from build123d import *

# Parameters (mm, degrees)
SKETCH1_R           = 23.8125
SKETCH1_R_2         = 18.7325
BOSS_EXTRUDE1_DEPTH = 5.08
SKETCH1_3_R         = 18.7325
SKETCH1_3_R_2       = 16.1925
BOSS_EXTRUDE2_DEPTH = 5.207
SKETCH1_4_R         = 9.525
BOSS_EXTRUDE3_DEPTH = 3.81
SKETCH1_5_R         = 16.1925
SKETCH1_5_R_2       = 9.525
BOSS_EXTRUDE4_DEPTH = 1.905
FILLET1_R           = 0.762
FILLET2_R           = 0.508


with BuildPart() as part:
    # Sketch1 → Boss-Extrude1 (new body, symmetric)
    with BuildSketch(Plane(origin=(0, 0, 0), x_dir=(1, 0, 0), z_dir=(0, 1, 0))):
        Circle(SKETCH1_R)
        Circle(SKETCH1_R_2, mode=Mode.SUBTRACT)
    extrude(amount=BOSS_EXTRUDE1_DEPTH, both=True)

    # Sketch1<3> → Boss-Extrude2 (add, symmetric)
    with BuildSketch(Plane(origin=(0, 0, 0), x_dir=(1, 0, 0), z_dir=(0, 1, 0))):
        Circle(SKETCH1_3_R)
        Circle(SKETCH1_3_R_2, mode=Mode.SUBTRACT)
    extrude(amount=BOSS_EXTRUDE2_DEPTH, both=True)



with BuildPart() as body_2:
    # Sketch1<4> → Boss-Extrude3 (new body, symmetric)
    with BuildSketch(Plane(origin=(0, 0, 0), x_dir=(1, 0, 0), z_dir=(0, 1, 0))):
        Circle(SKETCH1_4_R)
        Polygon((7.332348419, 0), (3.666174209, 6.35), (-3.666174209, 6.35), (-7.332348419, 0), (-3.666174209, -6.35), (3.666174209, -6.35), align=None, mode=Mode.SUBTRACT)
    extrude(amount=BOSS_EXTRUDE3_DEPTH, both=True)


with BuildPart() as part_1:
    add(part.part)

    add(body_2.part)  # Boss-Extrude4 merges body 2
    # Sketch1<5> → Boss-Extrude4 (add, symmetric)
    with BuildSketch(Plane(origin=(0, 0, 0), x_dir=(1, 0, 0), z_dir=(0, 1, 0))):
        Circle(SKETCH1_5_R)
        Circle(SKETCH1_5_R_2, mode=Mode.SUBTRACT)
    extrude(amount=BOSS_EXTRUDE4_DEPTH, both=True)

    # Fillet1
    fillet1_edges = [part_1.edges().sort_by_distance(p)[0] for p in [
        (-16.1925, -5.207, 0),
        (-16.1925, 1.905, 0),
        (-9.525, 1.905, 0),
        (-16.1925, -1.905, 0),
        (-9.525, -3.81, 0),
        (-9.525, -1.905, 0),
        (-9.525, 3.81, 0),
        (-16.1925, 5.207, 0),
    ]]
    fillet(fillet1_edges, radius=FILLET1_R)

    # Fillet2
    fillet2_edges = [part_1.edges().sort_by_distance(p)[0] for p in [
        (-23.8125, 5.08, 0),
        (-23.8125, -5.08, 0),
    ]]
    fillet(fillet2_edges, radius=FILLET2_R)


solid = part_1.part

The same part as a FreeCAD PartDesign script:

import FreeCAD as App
import Part
import Sketcher
from FreeCAD import Vector
Q = App.Units.Quantity


def edges_at(feature, points):
    """Names of the edges that pass closest to the given points."""
    edges = feature.Shape.Edges
    near = lambda p: min(range(len(edges)), key=lambda i: edges[i].distToShape(Part.Vertex(*p))[0])
    return sorted({f"Edge{near(p) + 1}" for p in points})

doc = App.newDocument("Part")
body = doc.addObject("PartDesign::Body", "Body")

# Sketch on XZ plane
sketch1 = body.newObject("Sketcher::SketchObject", "Sketch")
sketch1.AttachmentSupport = (doc.getObject("XZ_Plane"), [""])
sketch1.MapMode = "FlatFace"
sketch1.addGeometry([
    Part.Circle(Vector(0, 0, 0), Vector(0, 0, 1), 24),
    Part.Circle(Vector(0, 0, 0), Vector(0, 0, 1), 19),
], False)
sketch1.addConstraint([
    Sketcher.Constraint("Coincident", 0, 3, -1, 1),
    Sketcher.Constraint("Coincident", 1, 3, -1, 1),
    Sketcher.Constraint("Diameter", 0, Q("1.875 in")),
    Sketcher.Constraint("Diameter", 1, Q("1.475 in")),
])
pad1 = body.newObject("PartDesign::Pad", "Pad")
pad1.Profile = sketch1
pad1.Length = Q("0.4 in")
pad1.Midplane = True

# Sketch on XZ plane
sketch2 = body.newObject("Sketcher::SketchObject", "Sketch001")
sketch2.AttachmentSupport = (doc.getObject("XZ_Plane"), [""])
sketch2.MapMode = "FlatFace"
sketch2.addGeometry([
    Part.Circle(Vector(0, 0, 0), Vector(0, 0, 1), 19),
    Part.Circle(Vector(0, 0, 0), Vector(0, 0, 1), 16),
], False)
sketch2.addConstraint([
    Sketcher.Constraint("Coincident", 0, 3, -1, 1),
    Sketcher.Constraint("Coincident", 1, 3, -1, 1),
    Sketcher.Constraint("Diameter", 0, Q("1.475 in")),
    Sketcher.Constraint("Diameter", 1, Q("1.275 in")),
])
pad2 = body.newObject("PartDesign::Pad", "Pad001")
pad2.Profile = sketch2
pad2.Length = Q("0.41 in")
pad2.Midplane = True
body2 = doc.addObject("PartDesign::Body", "Body001")

# Sketch on XZ plane
sketch3 = body2.newObject("Sketcher::SketchObject", "Sketch002")
sketch3.AttachmentSupport = (doc.getObject("XZ_Plane001"), [""])
sketch3.MapMode = "FlatFace"
sketch3.addGeometry([
    Part.Circle(Vector(0, 0, 0), Vector(0, 0, 1), 10),  # 0
    Part.LineSegment(Vector(4, -6, 0), Vector(7, 0, 0)),  # 1
    Part.LineSegment(Vector(7, 0, 0), Vector(4, 6, 0)),  # 2
    Part.LineSegment(Vector(4, 6, 0), Vector(-4, 6, 0)),  # 3
    Part.LineSegment(Vector(-4, 6, 0), Vector(-7, 0, 0)),  # 4
    Part.LineSegment(Vector(-7, 0, 0), Vector(-4, -6, 0)),  # 5
    Part.LineSegment(Vector(-4, -6, 0), Vector(4, -6, 0)),  # 6
], False)
sketch3.addConstraint([
    Sketcher.Constraint("Coincident", 1, 2, 2, 1),
    Sketcher.Constraint("Coincident", 2, 2, 3, 1),
    Sketcher.Constraint("Coincident", 3, 2, 4, 1),
    Sketcher.Constraint("Coincident", 4, 2, 5, 1),
    Sketcher.Constraint("Coincident", 5, 2, 6, 1),
    Sketcher.Constraint("Coincident", 6, 2, 1, 1),
    Sketcher.Constraint("Horizontal", 3),
    Sketcher.Constraint("Horizontal", 6),
    Sketcher.Constraint("Coincident", 0, 3, -1, 1),
    Sketcher.Constraint("Symmetric", 1, 2, 4, 2, -1, 1),
    Sketcher.Constraint("Symmetric", 2, 2, 5, 2, -1, 1),
    Sketcher.Constraint("PointOnObject", 1, 2, -1),
    Sketcher.Constraint("Parallel", 1, 4),
    Sketcher.Constraint("Vertical", 3, 2, 5, 2),
    Sketcher.Constraint("Diameter", 0, Q("0.75 in")),
    Sketcher.Constraint("Angle", 1, Q("60 deg")),
    Sketcher.Constraint("DistanceY", 5, 2, 3, 2, Q("0.5 in")),
    Sketcher.Constraint("DistanceX", 3, 2, 3, 1, Q("7.332348 mm")),
])
pad3 = body2.newObject("PartDesign::Pad", "Pad002")
pad3.Profile = sketch3
pad3.Length = Q("0.3 in")
pad3.Midplane = True
body.AllowCompound = True
doc.recompute()

boolean = body.newObject("PartDesign::Boolean", "Boolean")
boolean.Type = "Fuse"
boolean.addObjects([body2])

# Sketch on XZ plane
sketch4 = body.newObject("Sketcher::SketchObject", "Sketch003")
sketch4.AttachmentSupport = (doc.getObject("XZ_Plane"), [""])
sketch4.MapMode = "FlatFace"
sketch4.addGeometry([
    Part.Circle(Vector(0, 0, 0), Vector(0, 0, 1), 16),
    Part.Circle(Vector(0, 0, 0), Vector(0, 0, 1), 10),
], False)
sketch4.addConstraint([
    Sketcher.Constraint("Coincident", 0, 3, -1, 1),
    Sketcher.Constraint("Coincident", 1, 3, -1, 1),
    Sketcher.Constraint("Diameter", 1, Q("0.75 in")),
    Sketcher.Constraint("Diameter", 0, Q("1.275 in")),
])
pad4 = body.newObject("PartDesign::Pad", "Pad003")
pad4.Profile = sketch4
pad4.Length = Q("0.15 in")
pad4.Midplane = True
doc.recompute()

fillet = body.newObject("PartDesign::Fillet", "Fillet")
fillet.Base = (pad4, edges_at(pad4, [
    (-16.192, -5.207, 0),
    (-16.192, 1.905, 0),
    (-9.525, 1.905, 0),
    (-16.192, -1.905, 0),
    (-9.525, -3.81, 0),
    (-9.525, -1.905, 0),
    (-9.525, 3.81, 0),
    (-16.192, 5.207, 0),
]))
fillet.Radius = Q("0.03 in")
doc.recompute()

fillet2 = body.newObject("PartDesign::Fillet", "Fillet001")
fillet2.Base = (fillet, edges_at(fillet, [(-23.812, 5.08, 0), (-23.812, -5.08, 0)]))
fillet2.Radius = Q("0.02 in")

doc.recompute()
